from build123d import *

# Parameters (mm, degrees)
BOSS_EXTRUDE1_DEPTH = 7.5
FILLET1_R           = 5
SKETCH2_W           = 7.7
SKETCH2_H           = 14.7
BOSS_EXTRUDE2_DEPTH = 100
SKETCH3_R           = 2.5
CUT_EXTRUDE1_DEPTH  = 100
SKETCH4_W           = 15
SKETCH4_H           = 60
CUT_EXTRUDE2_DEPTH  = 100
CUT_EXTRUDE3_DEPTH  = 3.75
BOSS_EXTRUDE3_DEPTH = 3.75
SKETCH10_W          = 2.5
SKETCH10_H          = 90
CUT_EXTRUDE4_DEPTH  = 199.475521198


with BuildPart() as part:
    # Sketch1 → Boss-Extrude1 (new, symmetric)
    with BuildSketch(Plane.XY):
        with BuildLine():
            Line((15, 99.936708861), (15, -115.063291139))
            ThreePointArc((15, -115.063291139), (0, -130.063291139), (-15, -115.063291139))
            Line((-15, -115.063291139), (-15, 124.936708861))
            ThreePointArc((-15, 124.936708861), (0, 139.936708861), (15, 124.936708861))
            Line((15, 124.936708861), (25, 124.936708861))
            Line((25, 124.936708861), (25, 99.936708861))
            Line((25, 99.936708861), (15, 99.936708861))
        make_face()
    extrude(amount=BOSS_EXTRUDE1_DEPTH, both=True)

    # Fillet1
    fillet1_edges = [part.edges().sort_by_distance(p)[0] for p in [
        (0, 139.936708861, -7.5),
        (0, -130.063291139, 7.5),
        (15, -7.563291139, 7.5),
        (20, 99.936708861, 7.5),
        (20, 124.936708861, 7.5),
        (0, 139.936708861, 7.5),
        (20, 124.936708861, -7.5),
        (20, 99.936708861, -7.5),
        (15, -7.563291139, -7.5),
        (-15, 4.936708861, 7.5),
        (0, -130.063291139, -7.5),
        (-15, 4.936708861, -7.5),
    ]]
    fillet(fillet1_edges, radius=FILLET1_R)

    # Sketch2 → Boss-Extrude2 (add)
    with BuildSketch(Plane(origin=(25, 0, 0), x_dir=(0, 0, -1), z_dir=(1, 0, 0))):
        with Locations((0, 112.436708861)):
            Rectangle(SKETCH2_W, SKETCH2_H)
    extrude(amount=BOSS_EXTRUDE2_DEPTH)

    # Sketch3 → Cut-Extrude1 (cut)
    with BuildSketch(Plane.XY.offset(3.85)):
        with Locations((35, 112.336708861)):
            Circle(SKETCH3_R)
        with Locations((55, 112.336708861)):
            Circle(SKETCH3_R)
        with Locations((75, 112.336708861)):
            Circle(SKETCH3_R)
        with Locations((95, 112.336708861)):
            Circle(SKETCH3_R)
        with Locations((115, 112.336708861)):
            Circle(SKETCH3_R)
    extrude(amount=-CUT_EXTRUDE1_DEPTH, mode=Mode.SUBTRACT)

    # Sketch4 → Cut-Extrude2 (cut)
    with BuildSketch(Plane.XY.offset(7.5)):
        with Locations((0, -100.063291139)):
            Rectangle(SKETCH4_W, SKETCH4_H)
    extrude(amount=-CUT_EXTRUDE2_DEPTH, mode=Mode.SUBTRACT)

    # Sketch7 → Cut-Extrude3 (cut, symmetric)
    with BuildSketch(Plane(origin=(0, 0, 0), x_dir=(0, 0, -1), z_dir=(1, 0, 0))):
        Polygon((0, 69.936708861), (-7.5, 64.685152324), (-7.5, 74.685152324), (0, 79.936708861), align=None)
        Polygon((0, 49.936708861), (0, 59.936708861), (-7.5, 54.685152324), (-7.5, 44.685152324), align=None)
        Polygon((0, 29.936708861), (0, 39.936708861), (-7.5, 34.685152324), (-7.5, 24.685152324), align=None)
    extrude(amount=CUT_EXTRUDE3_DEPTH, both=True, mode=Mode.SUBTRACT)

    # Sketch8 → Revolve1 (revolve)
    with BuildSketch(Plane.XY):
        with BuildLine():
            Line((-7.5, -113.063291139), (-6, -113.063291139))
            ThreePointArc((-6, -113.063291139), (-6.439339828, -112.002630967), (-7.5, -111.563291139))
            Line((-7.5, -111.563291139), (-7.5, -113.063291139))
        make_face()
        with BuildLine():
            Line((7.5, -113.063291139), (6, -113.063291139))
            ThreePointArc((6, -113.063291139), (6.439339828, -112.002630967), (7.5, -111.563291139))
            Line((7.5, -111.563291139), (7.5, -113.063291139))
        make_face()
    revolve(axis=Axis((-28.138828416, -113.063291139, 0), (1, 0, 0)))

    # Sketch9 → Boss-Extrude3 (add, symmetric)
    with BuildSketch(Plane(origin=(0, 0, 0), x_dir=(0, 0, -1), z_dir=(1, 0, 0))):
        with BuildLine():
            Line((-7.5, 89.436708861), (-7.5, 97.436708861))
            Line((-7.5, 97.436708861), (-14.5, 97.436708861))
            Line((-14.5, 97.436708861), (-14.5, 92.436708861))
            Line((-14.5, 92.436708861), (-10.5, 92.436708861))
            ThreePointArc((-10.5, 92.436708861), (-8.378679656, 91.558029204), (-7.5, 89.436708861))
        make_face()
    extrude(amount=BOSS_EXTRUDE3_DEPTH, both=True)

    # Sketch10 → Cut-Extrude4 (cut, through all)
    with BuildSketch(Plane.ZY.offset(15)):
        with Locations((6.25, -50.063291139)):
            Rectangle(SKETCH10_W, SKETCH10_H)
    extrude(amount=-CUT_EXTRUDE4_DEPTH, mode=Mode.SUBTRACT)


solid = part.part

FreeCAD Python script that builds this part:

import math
import FreeCAD as App
import Part
import Sketcher
Q = App.Units.Quantity


def edges_at(feature, points):
    """Names of the edges that pass closest to the given points."""
    edges = feature.Shape.Edges
    near = lambda p: min(range(len(edges)), key=lambda i: edges[i].distToShape(Part.Vertex(*p))[0])
    return sorted({f"Edge{near(p) + 1}" for p in points})

doc = App.newDocument("Part")
body = doc.addObject("PartDesign::Body", "Body")

# Sketch on XY plane
sketch1 = doc.addObject("Sketcher::SketchObject", "Sketch")
body.addObject(sketch1)
sketch1.AttachmentSupport = (doc.XY_Plane, [""])
sketch1.MapMode = "FlatFace"
sketch1.addGeometry(Part.LineSegment(App.Vector(15, -115.063291, 0), App.Vector(15, 99.936709, 0)), False)
sketch1.addGeometry(Part.LineSegment(App.Vector(15, 99.936709, 0), App.Vector(25, 99.936709, 0)), False)
sketch1.addGeometry(Part.LineSegment(App.Vector(25, 99.936709, 0), App.Vector(25, 124.936709, 0)), False)
sketch1.addGeometry(Part.LineSegment(App.Vector(25, 124.936709, 0), App.Vector(15, 124.936709, 0)), False)
sketch1.addGeometry(Part.ArcOfCircle(Part.Circle(App.Vector(0, 124.936709, 0), App.Vector(0, 0, 1), 15), math.radians(0), math.radians(180)), False)
sketch1.addGeometry(Part.LineSegment(App.Vector(-15, 124.936709, 0), App.Vector(-15, -115.063291, 0)), False)
sketch1.addGeometry(Part.ArcOfCircle(Part.Circle(App.Vector(0, -115.063291, 0), App.Vector(0, 0, 1), 15), math.radians(180), math.radians(360)), False)
sketch1.addConstraint(Sketcher.Constraint("Coincident", 0, 2, 1, 1))
sketch1.addConstraint(Sketcher.Constraint("Coincident", 1, 2, 2, 1))
sketch1.addConstraint(Sketcher.Constraint("Coincident", 2, 2, 3, 1))
sketch1.addConstraint(Sketcher.Constraint("Coincident", 3, 2, 4, 1))
sketch1.addConstraint(Sketcher.Constraint("Tangent", 4, 2, 5, 1))
sketch1.addConstraint(Sketcher.Constraint("Tangent", 5, 2, 6, 1))
sketch1.addConstraint(Sketcher.Constraint("Tangent", 6, 2, 0, 1))
sketch1.addConstraint(Sketcher.Constraint("Vertical", 0))
sketch1.addConstraint(Sketcher.Constraint("Horizontal", 1))
sketch1.addConstraint(Sketcher.Constraint("Vertical", 2))
sketch1.addConstraint(Sketcher.Constraint("Horizontal", 3))
sketch1.addConstraint(Sketcher.Constraint("Vertical", 5))
sketch1.addConstraint(Sketcher.Constraint("Equal", 4, 6))
sketch1.addConstraint(Sketcher.Constraint("Symmetric", 3, 2, 4, 2, -2))
sketch1.addConstraint(Sketcher.Constraint("Radius", 4, 15.0))
sketch1.addConstraint(Sketcher.Constraint("DistanceX", 1, 1, 1, 2, 10.0))
sketch1.addConstraint(Sketcher.Constraint("DistanceY", 0, 1, 0, 2, 215.0))
sketch1.addConstraint(Sketcher.Constraint("DistanceY", 2, 1, 2, 2, 25.0))
sketch1.addConstraint(Sketcher.Constraint("DistanceY", -1, 1, 4, 3, 124.936709))
pad1 = doc.addObject("PartDesign::Pad", "Pad")
body.addObject(pad1)
pad1.Profile = sketch1
pad1.Length = 15
pad1.Midplane = True
doc.recompute()

fillet = doc.addObject("PartDesign::Fillet", "Fillet")
body.addObject(fillet)
fillet.Base = (pad1, edges_at(pad1, [
    (0, 139.937, -7.5),
    (0, -130.063, 7.5),
    (15, -7.563, 7.5),
    (20, 99.937, 7.5),
    (20, 124.937, 7.5),
    (0, 139.937, 7.5),
    (20, 124.937, -7.5),
    (20, 99.937, -7.5),
    (15, -7.563, -7.5),
    (-15, 4.937, 7.5),
    (0, -130.063, -7.5),
    (-15, 4.937, -7.5),
]))
fillet.Radius = 5

# Sketch on YZ plane
sketch2 = doc.addObject("Sketcher::SketchObject", "Sketch001")
body.addObject(sketch2)
sketch2.AttachmentSupport = (doc.YZ_Plane, [""])
sketch2.MapMode = "FlatFace"
sketch2.AttachmentOffset = App.Placement(App.Vector(0, 0, 25), App.Rotation())
sketch2.addGeometry(Part.LineSegment(App.Vector(119.786709, 3.85, 0), App.Vector(105.086709, 3.85, 0)), False)
sketch2.addGeometry(Part.LineSegment(App.Vector(105.086709, 3.85, 0), App.Vector(105.086709, -3.85, 0)), False)
sketch2.addGeometry(Part.LineSegment(App.Vector(105.086709, -3.85, 0), App.Vector(119.786709, -3.85, 0)), False)
sketch2.addGeometry(Part.LineSegment(App.Vector(119.786709, -3.85, 0), App.Vector(119.786709, 3.85, 0)), False)
sketch2.addConstraint(Sketcher.Constraint("Coincident", 0, 2, 1, 1))
sketch2.addConstraint(Sketcher.Constraint("Coincident", 1, 2, 2, 1))
sketch2.addConstraint(Sketcher.Constraint("Coincident", 2, 2, 3, 1))
sketch2.addConstraint(Sketcher.Constraint("Coincident", 3, 2, 0, 1))
sketch2.addConstraint(Sketcher.Constraint("Horizontal", 0))
sketch2.addConstraint(Sketcher.Constraint("Vertical", 1))
sketch2.addConstraint(Sketcher.Constraint("Horizontal", 2))
sketch2.addConstraint(Sketcher.Constraint("Vertical", 3))
sketch2.addConstraint(Sketcher.Constraint("DistanceX", 0, 2, 0, 1, 14.7))
sketch2.addConstraint(Sketcher.Constraint("DistanceY", 1, 2, 1, 1, 7.7))
sketch2.addConstraint(Sketcher.Constraint("DistanceY", -1, 1, 0, 2, 3.85))
sketch2.addConstraint(Sketcher.Constraint("DistanceX", -1, 1, 0, 2, 105.086709))
pad2 = doc.addObject("PartDesign::Pad", "Pad001")
body.addObject(pad2)
pad2.Profile = sketch2
pad2.Length = 100

# Sketch on XY plane
sketch3 = doc.addObject("Sketcher::SketchObject", "Sketch002")
body.addObject(sketch3)
sketch3.AttachmentSupport = (doc.XY_Plane, [""])
sketch3.MapMode = "FlatFace"
sketch3.AttachmentOffset = App.Placement(App.Vector(0, 0, 3.85), App.Rotation())
sketch3.addGeometry(Part.Circle(App.Vector(35, 112.336709, 0), App.Vector(0, 0, 1), 2.5), False)
sketch3.addGeometry(Part.Circle(App.Vector(55, 112.336709, 0), App.Vector(0, 0, 1), 2.5), False)
sketch3.addGeometry(Part.Circle(App.Vector(75, 112.336709, 0), App.Vector(0, 0, 1), 2.5), False)
sketch3.addGeometry(Part.Circle(App.Vector(95, 112.336709, 0), App.Vector(0, 0, 1), 2.5), False)
sketch3.addGeometry(Part.Circle(App.Vector(115, 112.336709, 0), App.Vector(0, 0, 1), 2.5), False)
sketch3.addConstraint(Sketcher.Constraint("Equal", 0, 1))
sketch3.addConstraint(Sketcher.Constraint("Equal", 1, 2))
sketch3.addConstraint(Sketcher.Constraint("Equal", 2, 3))
sketch3.addConstraint(Sketcher.Constraint("Equal", 3, 4))
sketch3.addConstraint(Sketcher.Constraint("Horizontal", 0, 3, 1, 3))
sketch3.addConstraint(Sketcher.Constraint("Horizontal", 1, 3, 2, 3))
sketch3.addConstraint(Sketcher.Constraint("Horizontal", 2, 3, 3, 3))
sketch3.addConstraint(Sketcher.Constraint("Horizontal", 3, 3, 4, 3))
sketch3.addConstraint(Sketcher.Constraint("Diameter", 0, 5.0))
sketch3.addConstraint(Sketcher.Constraint("DistanceX", -1, 1, 0, 3, 35.0))
sketch3.addConstraint(Sketcher.Constraint("DistanceX", -1, 1, 1, 3, 55.0))
sketch3.addConstraint(Sketcher.Constraint("DistanceX", -1, 1, 2, 3, 75.0))
sketch3.addConstraint(Sketcher.Constraint("DistanceX", -1, 1, 3, 3, 95.0))
sketch3.addConstraint(Sketcher.Constraint("DistanceX", -1, 1, 4, 3, 115.0))
sketch3.addConstraint(Sketcher.Constraint("DistanceY", -1, 1, 0, 3, 112.336709))
pocket1 = doc.addObject("PartDesign::Pocket", "Pocket")
body.addObject(pocket1)
pocket1.Profile = sketch3
pocket1.Length = 100

# Sketch on XY plane
sketch4 = doc.addObject("Sketcher::SketchObject", "Sketch003")
body.addObject(sketch4)
sketch4.AttachmentSupport = (doc.XY_Plane, [""])
sketch4.MapMode = "FlatFace"
sketch4.AttachmentOffset = App.Placement(App.Vector(0, 0, 7.5), App.Rotation())
sketch4.addGeometry(Part.LineSegment(App.Vector(-7.5, -70.063291, 0), App.Vector(-7.5, -130.063291, 0)), False)
sketch4.addGeometry(Part.LineSegment(App.Vector(-7.5, -130.063291, 0), App.Vector(7.5, -130.063291, 0)), False)
sketch4.addGeometry(Part.LineSegment(App.Vector(7.5, -130.063291, 0), App.Vector(7.5, -70.063291, 0)), False)
sketch4.addGeometry(Part.LineSegment(App.Vector(7.5, -70.063291, 0), App.Vector(-7.5, -70.063291, 0)), False)
sketch4.addConstraint(Sketcher.Constraint("Coincident", 0, 2, 1, 1))
sketch4.addConstraint(Sketcher.Constraint("Coincident", 1, 2, 2, 1))
sketch4.addConstraint(Sketcher.Constraint("Coincident", 2, 2, 3, 1))
sketch4.addConstraint(Sketcher.Constraint("Coincident", 3, 2, 0, 1))
sketch4.addConstraint(Sketcher.Constraint("Vertical", 0))
sketch4.addConstraint(Sketcher.Constraint("Horizontal", 1))
sketch4.addConstraint(Sketcher.Constraint("Vertical", 2))
sketch4.addConstraint(Sketcher.Constraint("Horizontal", 3))
sketch4.addConstraint(Sketcher.Constraint("DistanceX", 1, 1, 1, 2, 15.0))
sketch4.addConstraint(Sketcher.Constraint("DistanceY", 0, 2, 0, 1, 60.0))
sketch4.addConstraint(Sketcher.Constraint("DistanceX", 0, 2, -1, 1, 7.5))
sketch4.addConstraint(Sketcher.Constraint("DistanceY", 0, 2, -1, 1, 130.063291))
pocket2 = doc.addObject("PartDesign::Pocket", "Pocket001")
body.addObject(pocket2)
pocket2.Profile = sketch4
pocket2.Length = 100

# Sketch on YZ plane
sketch5 = doc.addObject("Sketcher::SketchObject", "Sketch004")
body.addObject(sketch5)
sketch5.AttachmentSupport = (doc.YZ_Plane, [""])
sketch5.MapMode = "FlatFace"
sketch5.addGeometry(Part.LineSegment(App.Vector(64.685152, 7.5, 0), App.Vector(69.936709, 0, 0)), False)
sketch5.addGeometry(Part.LineSegment(App.Vector(69.936709, 0, 0), App.Vector(79.936709, 0, 0)), False)
sketch5.addGeometry(Part.LineSegment(App.Vector(79.936709, 0, 0), App.Vector(74.685152, 7.5, 0)), False)
sketch5.addGeometry(Part.LineSegment(App.Vector(74.685152, 7.5, 0), App.Vector(64.685152, 7.5, 0)), False)
sketch5.addGeometry(Part.LineSegment(App.Vector(49.936709, 0, 0), App.Vector(59.936709, 0, 0)), False)
sketch5.addGeometry(Part.LineSegment(App.Vector(59.936709, 0, 0), App.Vector(54.685152, 7.5, 0)), False)
sketch5.addGeometry(Part.LineSegment(App.Vector(54.685152, 7.5, 0), App.Vector(44.685152, 7.5, 0)), False)
sketch5.addGeometry(Part.LineSegment(App.Vector(44.685152, 7.5, 0), App.Vector(49.936709, 0, 0)), False)
sketch5.addGeometry(Part.LineSegment(App.Vector(29.936709, 0, 0), App.Vector(39.936709, 0, 0)), False)
sketch5.addGeometry(Part.LineSegment(App.Vector(39.936709, 0, 0), App.Vector(34.685152, 7.5, 0)), False)
sketch5.addGeometry(Part.LineSegment(App.Vector(34.685152, 7.5, 0), App.Vector(24.685152, 7.5, 0)), False)
sketch5.addGeometry(Part.LineSegment(App.Vector(24.685152, 7.5, 0), App.Vector(29.936709, 0, 0)), False)
sketch5.addConstraint(Sketcher.Constraint("Coincident", 0, 2, 1, 1))
sketch5.addConstraint(Sketcher.Constraint("Coincident", 1, 2, 2, 1))
sketch5.addConstraint(Sketcher.Constraint("Coincident", 2, 2, 3, 1))
sketch5.addConstraint(Sketcher.Constraint("Coincident", 3, 2, 0, 1))
sketch5.addConstraint(Sketcher.Constraint("Coincident", 4, 2, 5, 1))
sketch5.addConstraint(Sketcher.Constraint("Coincident", 5, 2, 6, 1))
sketch5.addConstraint(Sketcher.Constraint("Coincident", 6, 2, 7, 1))
sketch5.addConstraint(Sketcher.Constraint("Coincident", 7, 2, 4, 1))
sketch5.addConstraint(Sketcher.Constraint("Coincident", 8, 2, 9, 1))
sketch5.addConstraint(Sketcher.Constraint("Coincident", 9, 2, 10, 1))
sketch5.addConstraint(Sketcher.Constraint("Coincident", 10, 2, 11, 1))
sketch5.addConstraint(Sketcher.Constraint("Coincident", 11, 2, 8, 1))
sketch5.addConstraint(Sketcher.Constraint("Horizontal", 1))
sketch5.addConstraint(Sketcher.Constraint("Horizontal", 3))
sketch5.addConstraint(Sketcher.Constraint("Horizontal", 4))
sketch5.addConstraint(Sketcher.Constraint("Horizontal", 6))
sketch5.addConstraint(Sketcher.Constraint("Horizontal", 8))
sketch5.addConstraint(Sketcher.Constraint("Horizontal", 10))
sketch5.addConstraint(Sketcher.Constraint("PointOnObject", 0, 2, -1))
sketch5.addConstraint(Sketcher.Constraint("PointOnObject", 4, 2, -1))
sketch5.addConstraint(Sketcher.Constraint("PointOnObject", 8, 2, -1))
sketch5.addConstraint(Sketcher.Constraint("Parallel", 0, 2))
sketch5.addConstraint(Sketcher.Constraint("Parallel", 2, 5))
sketch5.addConstraint(Sketcher.Constraint("Parallel", 5, 7))
sketch5.addConstraint(Sketcher.Constraint("Parallel", 7, 9))
sketch5.addConstraint(Sketcher.Constraint("Parallel", 9, 11))
sketch5.addConstraint(Sketcher.Constraint("Horizontal", 3, 2, 5, 2))
sketch5.addConstraint(Sketcher.Constraint("Horizontal", 6, 2, 9, 2))
sketch5.addConstraint(Sketcher.Constraint("Equal", 3, 4))
sketch5.addConstraint(Sketcher.Constraint("Equal", 6, 8))
sketch5.addConstraint(Sketcher.Constraint("DistanceX", 1, 1, 1, 2, 10.0))
sketch5.addConstraint(Sketcher.Constraint("Angle", 0, Q("-55 deg")))
sketch5.addConstraint(Sketcher.Constraint("DistanceX", 4, 2, 0, 2, 10.0))
sketch5.addConstraint(Sketcher.Constraint("DistanceX", 8, 2, 7, 2, 10.0))
sketch5.addConstraint(Sketcher.Constraint("DistanceY", -1, 1, 2, 2, 7.5))
sketch5.addConstraint(Sketcher.Constraint("DistanceX", -1, 1, 0, 2, 69.936709))
pocket3 = doc.addObject("PartDesign::Pocket", "Pocket002")
body.addObject(pocket3)
pocket3.Profile = sketch5
pocket3.Length = 7.5
pocket3.Midplane = True

# Sketch on XY plane
sketch6 = doc.addObject("Sketcher::SketchObject", "Sketch005")
body.addObject(sketch6)
sketch6.AttachmentSupport = (doc.XY_Plane, [""])
sketch6.MapMode = "FlatFace"
sketch6.addGeometry(Part.LineSegment(App.Vector(-7.5, -113.063291, 0), App.Vector(-6, -113.063291, 0)), False)
sketch6.addGeometry(Part.ArcOfCircle(Part.Circle(App.Vector(-7.5, -113.063291, 0), App.Vector(0, 0, 1), 1.5), math.radians(0), math.radians(90)), False)
sketch6.addGeometry(Part.LineSegment(App.Vector(-7.5, -111.563291, 0), App.Vector(-7.5, -113.063291, 0)), False)
sketch6.addGeometry(Part.LineSegment(App.Vector(6, -113.063291, 0), App.Vector(7.5, -113.063291, 0)), False)
sketch6.addGeometry(Part.LineSegment(App.Vector(7.5, -113.063291, 0), App.Vector(7.5, -111.563291, 0)), False)
sketch6.addGeometry(Part.ArcOfCircle(Part.Circle(App.Vector(7.5, -113.063291, 0), App.Vector(0, 0, 1), 1.5), math.radians(90), math.radians(180)), False)
sketch6.addGeometry(Part.LineSegment(App.Vector(-7.5, -113.063291, 0), App.Vector(7.5, -113.063291, 0)), True)  # axis
sketch6.addConstraint(Sketcher.Constraint("Coincident", 0, 2, 1, 1))
sketch6.addConstraint(Sketcher.Constraint("Coincident", 1, 2, 2, 1))
sketch6.addConstraint(Sketcher.Constraint("Coincident", 2, 2, 0, 1))
sketch6.addConstraint(Sketcher.Constraint("Coincident", 3, 2, 4, 1))
sketch6.addConstraint(Sketcher.Constraint("Coincident", 4, 2, 5, 1))
sketch6.addConstraint(Sketcher.Constraint("Coincident", 5, 2, 3, 1))
sketch6.addConstraint(Sketcher.Constraint("Horizontal", 0))
sketch6.addConstraint(Sketcher.Constraint("Vertical", 2))
sketch6.addConstraint(Sketcher.Constraint("Horizontal", 3))
sketch6.addConstraint(Sketcher.Constraint("Vertical", 4))
sketch6.addConstraint(Sketcher.Constraint("Horizontal", 6))
sketch6.addConstraint(Sketcher.Constraint("Coincident", 2, 2, 1, 3))
sketch6.addConstraint(Sketcher.Constraint("Coincident", 3, 2, 5, 3))
sketch6.addConstraint(Sketcher.Constraint("Coincident", 6, 1, 1, 3))
sketch6.addConstraint(Sketcher.Constraint("Coincident", 6, 2, 5, 3))
sketch6.addConstraint(Sketcher.Constraint("Equal", 1, 5))
sketch6.addConstraint(Sketcher.Constraint("Radius", 1, 1.5))
sketch6.addConstraint(Sketcher.Constraint("DistanceX", 6, 1, 6, 2, 15.0))
sketch6.addConstraint(Sketcher.Constraint("DistanceX", 0, 2, -1, 1, 6.0))
sketch6.addConstraint(Sketcher.Constraint("DistanceY", 1, 3, -1, 1, 113.063291))
revolution = doc.addObject("PartDesign::Revolution", "Revolution")
body.addObject(revolution)
revolution.Profile = sketch6
revolution.ReferenceAxis = (sketch6, ["Axis0"])
revolution.Angle = 360

# Sketch on YZ plane
sketch7 = doc.addObject("Sketcher::SketchObject", "Sketch006")
body.addObject(sketch7)
sketch7.AttachmentSupport = (doc.YZ_Plane, [""])
sketch7.MapMode = "FlatFace"
sketch7.addGeometry(Part.LineSegment(App.Vector(89.436709, 7.5, 0), App.Vector(97.436709, 7.5, 0)), False)
sketch7.addGeometry(Part.LineSegment(App.Vector(97.436709, 7.5, 0), App.Vector(97.436709, 14.5, 0)), False)
sketch7.addGeometry(Part.LineSegment(App.Vector(97.436709, 14.5, 0), App.Vector(92.436709, 14.5, 0)), False)
sketch7.addGeometry(Part.LineSegment(App.Vector(92.436709, 14.5, 0), App.Vector(92.436709, 10.5, 0)), False)
sketch7.addGeometry(Part.ArcOfCircle(Part.Circle(App.Vector(89.436709, 10.5, 0), App.Vector(0, 0, 1), 3), math.radians(-90), math.radians(0)), False)
sketch7.addConstraint(Sketcher.Constraint("Coincident", 0, 2, 1, 1))
sketch7.addConstraint(Sketcher.Constraint("Coincident", 1, 2, 2, 1))
sketch7.addConstraint(Sketcher.Constraint("Coincident", 2, 2, 3, 1))
sketch7.addConstraint(Sketcher.Constraint("Tangent", 3, 2, 4, 2))
sketch7.addConstraint(Sketcher.Constraint("Tangent", 4, 1, 0, 1))
sketch7.addConstraint(Sketcher.Constraint("Horizontal", 0))
sketch7.addConstraint(Sketcher.Constraint("Vertical", 1))
sketch7.addConstraint(Sketcher.Constraint("Horizontal", 2))
sketch7.addConstraint(Sketcher.Constraint("Vertical", 3))
sketch7.addConstraint(Sketcher.Constraint("Radius", 4, 3.0))
sketch7.addConstraint(Sketcher.Constraint("DistanceX", 0, 1, 0, 2, 8.0))
sketch7.addConstraint(Sketcher.Constraint("DistanceY", 1, 1, 1, 2, 7.0))
sketch7.addConstraint(Sketcher.Constraint("DistanceY", -1, 1, 4, 3, 10.5))
sketch7.addConstraint(Sketcher.Constraint("DistanceX", -1, 1, 4, 3, 89.436709))
pad3 = doc.addObject("PartDesign::Pad", "Pad002")
body.addObject(pad3)
pad3.Profile = sketch7
pad3.Length = 7.5
pad3.Midplane = True

# Sketch on YZ plane
sketch8 = doc.addObject("Sketcher::SketchObject", "Sketch007")
body.addObject(sketch8)
sketch8.AttachmentSupport = (doc.YZ_Plane, [""])
sketch8.MapMode = "FlatFace"
sketch8.AttachmentOffset = App.Placement(App.Vector(0, 0, -15), App.Rotation())
sketch8.addGeometry(Part.LineSegment(App.Vector(-5.063291, 5, 0), App.Vector(-95.063291, 5, 0)), False)
sketch8.addGeometry(Part.LineSegment(App.Vector(-95.063291, 5, 0), App.Vector(-95.063291, 7.5, 0)), False)
sketch8.addGeometry(Part.LineSegment(App.Vector(-95.063291, 7.5, 0), App.Vector(-5.063291, 7.5, 0)), False)
sketch8.addGeometry(Part.LineSegment(App.Vector(-5.063291, 7.5, 0), App.Vector(-5.063291, 5, 0)), False)
sketch8.addConstraint(Sketcher.Constraint("Coincident", 0, 2, 1, 1))
sketch8.addConstraint(Sketcher.Constraint("Coincident", 1, 2, 2, 1))
sketch8.addConstraint(Sketcher.Constraint("Coincident", 2, 2, 3, 1))
sketch8.addConstraint(Sketcher.Constraint("Coincident", 3, 2, 0, 1))
sketch8.addConstraint(Sketcher.Constraint("Horizontal", 0))
sketch8.addConstraint(Sketcher.Constraint("Vertical", 1))
sketch8.addConstraint(Sketcher.Constraint("Horizontal", 2))
sketch8.addConstraint(Sketcher.Constraint("Vertical", 3))
sketch8.addConstraint(Sketcher.Constraint("DistanceX", 0, 2, 0, 1, 90.0))
sketch8.addConstraint(Sketcher.Constraint("DistanceY", 1, 1, 1, 2, 2.5))
sketch8.addConstraint(Sketcher.Constraint("DistanceY", -1, 1, 0, 2, 5.0))
sketch8.addConstraint(Sketcher.Constraint("DistanceX", 0, 2, -1, 1, 95.063291))
pocket4 = doc.addObject("PartDesign::Pocket", "Pocket003")
body.addObject(pocket4)
pocket4.Profile = sketch8
pocket4.Type = "ThroughAll"
pocket4.Reversed = True

doc.recompute()
